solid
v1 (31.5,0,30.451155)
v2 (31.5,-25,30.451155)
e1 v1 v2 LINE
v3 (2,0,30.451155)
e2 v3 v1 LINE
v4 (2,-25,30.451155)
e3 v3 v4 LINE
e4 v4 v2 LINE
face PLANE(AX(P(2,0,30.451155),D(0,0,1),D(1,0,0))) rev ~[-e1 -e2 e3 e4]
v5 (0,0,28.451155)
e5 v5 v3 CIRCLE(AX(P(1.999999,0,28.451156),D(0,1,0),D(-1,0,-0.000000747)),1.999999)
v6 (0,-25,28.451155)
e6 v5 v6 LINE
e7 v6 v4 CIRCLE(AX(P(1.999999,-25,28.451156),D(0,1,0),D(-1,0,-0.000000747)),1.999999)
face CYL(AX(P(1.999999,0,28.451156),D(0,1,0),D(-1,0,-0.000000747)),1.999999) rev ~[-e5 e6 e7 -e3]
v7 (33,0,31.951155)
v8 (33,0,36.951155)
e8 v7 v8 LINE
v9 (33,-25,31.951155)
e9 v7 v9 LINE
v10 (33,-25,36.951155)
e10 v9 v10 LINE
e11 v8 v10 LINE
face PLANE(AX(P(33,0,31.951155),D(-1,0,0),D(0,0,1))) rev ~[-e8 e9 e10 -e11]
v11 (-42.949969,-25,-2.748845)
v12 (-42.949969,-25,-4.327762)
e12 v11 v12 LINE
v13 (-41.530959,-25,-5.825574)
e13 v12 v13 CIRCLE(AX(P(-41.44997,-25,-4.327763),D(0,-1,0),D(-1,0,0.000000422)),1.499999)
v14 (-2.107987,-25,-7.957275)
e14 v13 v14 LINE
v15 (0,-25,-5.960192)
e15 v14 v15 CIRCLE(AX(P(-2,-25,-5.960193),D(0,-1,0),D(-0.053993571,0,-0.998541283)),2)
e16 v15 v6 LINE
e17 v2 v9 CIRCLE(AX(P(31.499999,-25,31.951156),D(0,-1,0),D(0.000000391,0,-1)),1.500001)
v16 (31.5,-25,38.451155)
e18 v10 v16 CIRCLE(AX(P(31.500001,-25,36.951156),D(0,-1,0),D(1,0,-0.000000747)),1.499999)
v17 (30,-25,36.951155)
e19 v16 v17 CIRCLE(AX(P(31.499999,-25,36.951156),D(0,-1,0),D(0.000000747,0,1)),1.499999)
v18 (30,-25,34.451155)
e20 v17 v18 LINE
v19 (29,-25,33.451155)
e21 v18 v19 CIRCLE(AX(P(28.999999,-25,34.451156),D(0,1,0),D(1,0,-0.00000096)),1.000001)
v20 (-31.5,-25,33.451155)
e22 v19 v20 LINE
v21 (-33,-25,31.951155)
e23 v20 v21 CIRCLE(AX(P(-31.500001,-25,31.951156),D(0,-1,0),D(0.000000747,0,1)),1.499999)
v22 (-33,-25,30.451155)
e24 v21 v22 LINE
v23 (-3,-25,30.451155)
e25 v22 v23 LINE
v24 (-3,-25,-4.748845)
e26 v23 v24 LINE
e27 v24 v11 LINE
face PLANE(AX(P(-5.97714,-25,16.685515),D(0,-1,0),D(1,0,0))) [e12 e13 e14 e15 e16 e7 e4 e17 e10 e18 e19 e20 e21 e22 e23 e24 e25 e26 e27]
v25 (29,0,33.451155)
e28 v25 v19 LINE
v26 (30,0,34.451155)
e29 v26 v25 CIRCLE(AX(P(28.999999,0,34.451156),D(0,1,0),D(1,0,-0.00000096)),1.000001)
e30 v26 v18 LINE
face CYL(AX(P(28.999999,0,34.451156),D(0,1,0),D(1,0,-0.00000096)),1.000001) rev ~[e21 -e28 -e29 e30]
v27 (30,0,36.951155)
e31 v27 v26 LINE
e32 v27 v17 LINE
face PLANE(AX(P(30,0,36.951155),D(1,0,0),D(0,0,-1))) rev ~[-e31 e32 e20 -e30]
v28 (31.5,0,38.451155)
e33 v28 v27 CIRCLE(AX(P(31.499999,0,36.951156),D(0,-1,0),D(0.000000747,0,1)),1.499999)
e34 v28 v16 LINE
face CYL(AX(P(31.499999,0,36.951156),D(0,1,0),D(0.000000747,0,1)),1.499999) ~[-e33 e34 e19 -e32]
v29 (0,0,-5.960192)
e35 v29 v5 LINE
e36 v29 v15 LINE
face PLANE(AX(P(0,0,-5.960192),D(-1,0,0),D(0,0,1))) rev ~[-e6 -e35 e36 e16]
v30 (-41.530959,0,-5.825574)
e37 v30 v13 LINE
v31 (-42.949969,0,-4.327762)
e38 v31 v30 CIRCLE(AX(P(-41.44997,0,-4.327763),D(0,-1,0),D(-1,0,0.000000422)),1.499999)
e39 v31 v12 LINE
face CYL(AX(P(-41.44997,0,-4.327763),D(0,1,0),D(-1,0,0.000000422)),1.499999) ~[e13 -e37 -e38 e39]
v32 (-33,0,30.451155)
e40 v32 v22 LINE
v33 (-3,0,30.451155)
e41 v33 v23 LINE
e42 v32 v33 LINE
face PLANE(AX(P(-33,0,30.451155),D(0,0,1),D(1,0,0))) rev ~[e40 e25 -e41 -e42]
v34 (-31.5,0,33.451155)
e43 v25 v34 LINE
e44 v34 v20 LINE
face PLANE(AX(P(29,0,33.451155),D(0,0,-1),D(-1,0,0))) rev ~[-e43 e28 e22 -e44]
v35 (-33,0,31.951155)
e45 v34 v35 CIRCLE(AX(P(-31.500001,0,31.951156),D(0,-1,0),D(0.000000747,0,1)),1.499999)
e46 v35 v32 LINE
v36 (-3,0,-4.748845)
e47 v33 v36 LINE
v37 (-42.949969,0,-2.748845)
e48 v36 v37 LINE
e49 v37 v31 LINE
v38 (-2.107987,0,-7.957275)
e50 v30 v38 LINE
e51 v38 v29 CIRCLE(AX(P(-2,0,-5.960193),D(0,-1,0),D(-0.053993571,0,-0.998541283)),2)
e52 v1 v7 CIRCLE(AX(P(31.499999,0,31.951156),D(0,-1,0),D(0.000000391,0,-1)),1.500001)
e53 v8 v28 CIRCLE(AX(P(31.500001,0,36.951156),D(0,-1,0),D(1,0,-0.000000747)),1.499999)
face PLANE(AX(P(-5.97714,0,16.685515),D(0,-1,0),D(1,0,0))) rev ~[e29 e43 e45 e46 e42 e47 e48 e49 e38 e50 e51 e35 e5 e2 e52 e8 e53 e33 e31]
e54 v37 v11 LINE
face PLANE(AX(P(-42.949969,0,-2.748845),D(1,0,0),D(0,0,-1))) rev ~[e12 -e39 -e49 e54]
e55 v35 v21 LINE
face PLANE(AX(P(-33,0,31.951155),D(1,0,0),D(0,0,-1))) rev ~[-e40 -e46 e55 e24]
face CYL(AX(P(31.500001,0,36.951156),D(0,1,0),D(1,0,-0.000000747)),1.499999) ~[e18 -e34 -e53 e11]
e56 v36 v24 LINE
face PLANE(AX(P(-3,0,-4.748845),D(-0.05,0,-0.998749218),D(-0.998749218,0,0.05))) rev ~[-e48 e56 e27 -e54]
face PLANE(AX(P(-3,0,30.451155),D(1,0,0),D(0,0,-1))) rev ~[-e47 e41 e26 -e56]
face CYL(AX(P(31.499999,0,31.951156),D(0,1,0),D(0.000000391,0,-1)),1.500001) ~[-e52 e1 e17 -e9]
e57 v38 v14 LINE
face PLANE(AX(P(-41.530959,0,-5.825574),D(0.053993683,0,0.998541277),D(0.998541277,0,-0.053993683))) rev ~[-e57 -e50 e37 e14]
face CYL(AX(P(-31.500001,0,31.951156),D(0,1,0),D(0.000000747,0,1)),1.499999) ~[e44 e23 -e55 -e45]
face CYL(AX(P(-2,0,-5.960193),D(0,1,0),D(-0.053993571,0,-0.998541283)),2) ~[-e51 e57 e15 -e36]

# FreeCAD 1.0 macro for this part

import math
import FreeCAD as App
import Part
import Sketcher

doc = App.newDocument("Part")
body = doc.addObject("PartDesign::Body", "Body")

# Sketch on XZ plane
sketch1 = doc.addObject("Sketcher::SketchObject", "Sketch")
body.addObject(sketch1)
sketch1.AttachmentSupport = (doc.XZ_Plane, [""])
sketch1.MapMode = "FlatFace"
sketch1.addGeometry([
    Part.LineSegment(App.Vector(29, 33.451155, 0), App.Vector(-31.5, 33.451155, 0)),  # 0
    Part.ArcOfCircle(Part.Circle(App.Vector(-31.500001, 31.951156, 0), App.Vector(0, 0, 1), 1.499999), math.radians(89.999957), math.radians(180.000043)),  # 1
    Part.LineSegment(App.Vector(-33, 31.951155, 0), App.Vector(-33, 30.451155, 0)),  # 2
    Part.LineSegment(App.Vector(-33, 30.451155, 0), App.Vector(-3, 30.451155, 0)),  # 3
    Part.LineSegment(App.Vector(-3, 30.451155, 0), App.Vector(-3, -4.748845, 0)),  # 4
    Part.LineSegment(App.Vector(-3, -4.748845, 0), App.Vector(-42.949969, -2.748845, 0)),  # 5
    Part.LineSegment(App.Vector(-42.949969, -2.748845, 0), App.Vector(-42.949969, -4.327762, 0)),  # 6
    Part.ArcOfCircle(Part.Circle(App.Vector(-41.44997, -4.327763, 0), App.Vector(0, 0, 1), 1.499999), math.radians(179.999976), math.radians(266.904927)),  # 7
    Part.LineSegment(App.Vector(-41.530959, -5.825574, 0), App.Vector(-2.107987, -7.957275, 0)),  # 8
    Part.ArcOfCircle(Part.Circle(App.Vector(-2, -5.960193, 0), App.Vector(0, 0, 1), 2), math.radians(-93.095109), math.radians(0.000016)),  # 9
    Part.LineSegment(App.Vector(0, -5.960192, 0), App.Vector(0, 28.451155, 0)),  # 10
    Part.ArcOfCircle(Part.Circle(App.Vector(1.999999, 28.451156, 0), App.Vector(0, 0, 1), 1.999999), math.radians(89.999957), math.radians(180.000043)),  # 11
    Part.LineSegment(App.Vector(2, 30.451155, 0), App.Vector(31.5, 30.451155, 0)),  # 12
    Part.ArcOfCircle(Part.Circle(App.Vector(31.499999, 31.951156, 0), App.Vector(0, 0, 1), 1.500001), math.radians(-89.999978), math.radians(-0.000022)),  # 13
    Part.LineSegment(App.Vector(33, 31.951155, 0), App.Vector(33, 36.951155, 0)),  # 14
    Part.ArcOfCircle(Part.Circle(App.Vector(31.500001, 36.951156, 0), App.Vector(0, 0, 1), 1.499999), math.radians(-0.000043), math.radians(90.000043)),  # 15
    Part.ArcOfCircle(Part.Circle(App.Vector(31.499999, 36.951156, 0), App.Vector(0, 0, 1), 1.499999), math.radians(89.999957), math.radians(180.000043)),  # 16
    Part.LineSegment(App.Vector(30, 36.951155, 0), App.Vector(30, 34.451155, 0)),  # 17
    Part.ArcOfCircle(Part.Circle(App.Vector(28.999999, 34.451156, 0), App.Vector(0, 0, 1), 1.000001), math.radians(-89.999945), math.radians(-0.000055)),  # 18
], False)
sketch1.addConstraint([
    Sketcher.Constraint("Tangent", 0, 2, 1, 1),
    Sketcher.Constraint("Tangent", 1, 2, 2, 1),
    Sketcher.Constraint("Coincident", 2, 2, 3, 1),
    Sketcher.Constraint("Coincident", 3, 2, 4, 1),
    Sketcher.Constraint("Coincident", 4, 2, 5, 1),
    Sketcher.Constraint("Coincident", 5, 2, 6, 1),
    Sketcher.Constraint("Tangent", 6, 2, 7, 1),
    Sketcher.Constraint("Tangent", 7, 2, 8, 1),
    Sketcher.Constraint("Tangent", 8, 2, 9, 1),
    Sketcher.Constraint("Tangent", 9, 2, 10, 1),
    Sketcher.Constraint("Tangent", 10, 2, 11, 2),
    Sketcher.Constraint("Tangent", 11, 1, 12, 1),
    Sketcher.Constraint("Tangent", 12, 2, 13, 1),
    Sketcher.Constraint("Tangent", 13, 2, 14, 1),
    Sketcher.Constraint("Tangent", 14, 2, 15, 1),
    Sketcher.Constraint("Tangent", 15, 2, 16, 1),
    Sketcher.Constraint("Tangent", 16, 2, 17, 1),
    Sketcher.Constraint("Tangent", 17, 2, 18, 2),
    Sketcher.Constraint("Tangent", 18, 1, 0, 1),
    Sketcher.Constraint("Horizontal", 0),
    Sketcher.Constraint("Vertical", 2),
    Sketcher.Constraint("Horizontal", 3),
    Sketcher.Constraint("Vertical", 4),
    Sketcher.Constraint("Vertical", 6),
    Sketcher.Constraint("Vertical", 10),
    Sketcher.Constraint("Horizontal", 12),
    Sketcher.Constraint("Vertical", 14),
    Sketcher.Constraint("Vertical", 17),
    Sketcher.Constraint("Equal", 1, 7),
    Sketcher.Constraint("Equal", 9, 11),
    Sketcher.Constraint("Equal", 7, 13),
    Sketcher.Constraint("Equal", 13, 15),
    Sketcher.Constraint("Equal", 15, 16),
    Sketcher.Constraint("Symmetric", 1, 3, 13, 3, -2),
    Sketcher.Constraint("PointOnObject", 9, 2, -2),
    Sketcher.Constraint("Horizontal", 3, 2, 11, 1),
    Sketcher.Constraint("Vertical", 12, 2, 15, 2),
    Sketcher.Constraint("Radius", 9, 2.0),
    Sketcher.Constraint("Radius", 18, 1.000001),
    Sketcher.Constraint("Radius", 1, 1.499999),
    Sketcher.Constraint("DistanceX", 3, 1, 3, 2, 30.0),
    Sketcher.Constraint("DistanceY", 14, 1, 14, 2, 5.0),
    Sketcher.Constraint("Distance", 5, 40.0),
    Sketcher.Constraint("DistanceX", 0, 2, 0, 1, 60.5),
    Sketcher.Constraint("DistanceY", 4, 2, 4, 1, 35.2),
    Sketcher.Constraint("DistanceY", 5, 2, 2, 2, 33.2),
    Sketcher.Constraint("DistanceY", 8, 2, 7, 2, 2.131701),
    Sketcher.Constraint("DistanceY", 6, 2, 6, 1, 1.578917),
    Sketcher.Constraint("DistanceY", -1, 1, 1, 3, 31.951156),
])
pad1 = doc.addObject("PartDesign::Pad", "Pad")
body.addObject(pad1)
pad1.Profile = sketch1
pad1.Length = 25

doc.recompute()
